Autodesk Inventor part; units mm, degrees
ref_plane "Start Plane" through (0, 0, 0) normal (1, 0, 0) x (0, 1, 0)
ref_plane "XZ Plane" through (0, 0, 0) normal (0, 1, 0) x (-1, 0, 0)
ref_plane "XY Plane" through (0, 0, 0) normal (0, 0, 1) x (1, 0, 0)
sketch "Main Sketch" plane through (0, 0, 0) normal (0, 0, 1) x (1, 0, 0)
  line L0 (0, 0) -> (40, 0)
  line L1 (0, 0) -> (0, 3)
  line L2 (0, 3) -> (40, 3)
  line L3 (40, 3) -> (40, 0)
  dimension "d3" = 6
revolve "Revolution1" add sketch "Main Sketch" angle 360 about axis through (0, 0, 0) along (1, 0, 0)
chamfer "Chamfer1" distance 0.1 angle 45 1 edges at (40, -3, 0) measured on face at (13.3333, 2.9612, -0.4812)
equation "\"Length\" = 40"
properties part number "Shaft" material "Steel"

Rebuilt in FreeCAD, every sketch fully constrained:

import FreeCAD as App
import Part
import Sketcher
from FreeCAD import Vector
Q = App.Units.Quantity


def edges_at(feature, points):
    """Names of the edges that pass closest to the given points."""
    edges = feature.Shape.Edges
    near = lambda p: min(range(len(edges)), key=lambda i: edges[i].distToShape(Part.Vertex(*p))[0])
    return sorted({f"Edge{near(p) + 1}" for p in points})

doc = App.newDocument("Part")
body = doc.addObject("PartDesign::Body", "Body")

# Sketch on XY plane
sketch1 = body.newObject("Sketcher::SketchObject", "Sketch")
sketch1.AttachmentSupport = (doc.getObject("XY_Plane"), [""])
sketch1.MapMode = "FlatFace"
sketch1.addGeometry([
    Part.LineSegment(Vector(0, 3, 0), Vector(0, 0, 0)),
    Part.LineSegment(Vector(0, 0, 0), Vector(40, 0, 0)),
    Part.LineSegment(Vector(40, 0, 0), Vector(40, 3, 0)),
    Part.LineSegment(Vector(40, 3, 0), Vector(0, 3, 0)),
], False)
sketch1.addConstraint([
    Sketcher.Constraint("Coincident", 0, 2, 1, 1),
    Sketcher.Constraint("Coincident", 1, 2, 2, 1),
    Sketcher.Constraint("Coincident", 2, 2, 3, 1),
    Sketcher.Constraint("Coincident", 3, 2, 0, 1),
    Sketcher.Constraint("Vertical", 0),
    Sketcher.Constraint("Horizontal", 1),
    Sketcher.Constraint("Vertical", 2),
    Sketcher.Constraint("Horizontal", 3),
    Sketcher.Constraint("Coincident", 0, 2, -1, 1),
    Sketcher.Constraint("DistanceX", 1, 1, 1, 2, Q("40 mm")),
    Sketcher.Constraint("DistanceY", 0, 2, 0, 1, Q("3 mm")),
])
revolution = body.newObject("PartDesign::Revolution", "Revolution")
revolution.Profile = sketch1
revolution.ReferenceAxis = (sketch1, ["H_Axis"])
revolution.Angle = 360
doc.recompute()

chamfer = body.newObject("PartDesign::Chamfer", "Chamfer")
chamfer.Base = (revolution, edges_at(revolution, [(40, -3, 0)]))
chamfer.Size = 0.1

doc.recompute()
